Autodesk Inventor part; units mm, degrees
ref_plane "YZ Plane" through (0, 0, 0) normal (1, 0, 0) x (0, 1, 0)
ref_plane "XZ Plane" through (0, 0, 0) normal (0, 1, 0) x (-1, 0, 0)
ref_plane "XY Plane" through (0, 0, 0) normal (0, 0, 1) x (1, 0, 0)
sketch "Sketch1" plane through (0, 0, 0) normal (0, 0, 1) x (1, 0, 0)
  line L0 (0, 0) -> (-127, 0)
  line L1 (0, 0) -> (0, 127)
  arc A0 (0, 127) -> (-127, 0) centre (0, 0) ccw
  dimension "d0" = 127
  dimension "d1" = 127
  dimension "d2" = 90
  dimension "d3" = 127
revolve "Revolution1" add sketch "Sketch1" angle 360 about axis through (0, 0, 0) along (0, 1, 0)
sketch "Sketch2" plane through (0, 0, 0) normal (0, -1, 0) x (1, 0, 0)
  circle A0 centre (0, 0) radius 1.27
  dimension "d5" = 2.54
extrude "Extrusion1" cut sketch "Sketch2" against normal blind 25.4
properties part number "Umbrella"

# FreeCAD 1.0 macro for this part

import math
import FreeCAD as App
import Part
import Sketcher

V = App.Vector
Q = App.Units.Quantity

doc = App.newDocument("Part")
body = doc.addObject("PartDesign::Body", "Body")

sketch1 = body.newObject("Sketcher::SketchObject", "Sketch")
sketch1.AttachmentSupport = (doc.getObject("XY_Plane"), [""])
sketch1.MapMode = "FlatFace"
sketch1.addGeometry([
    Part.LineSegment(V(-127, 0, 0), V(0, 0, 0)),
    Part.LineSegment(V(0, 0, 0), V(0, 127, 0)),
    Part.ArcOfCircle(Part.Circle(V(0, 0, 0), V(0, 0, 1), 127), math.radians(90), math.radians(180)),
], False)
sketch1.addConstraint([
    Sketcher.Constraint("Coincident", 0, 2, 1, 1),
    Sketcher.Constraint("Coincident", 1, 2, 2, 1),
    Sketcher.Constraint("Coincident", 2, 2, 0, 1),
    Sketcher.Constraint("Horizontal", 0),
    Sketcher.Constraint("Vertical", 1),
    Sketcher.Constraint("Coincident", 2, 3, -1, 1),
    Sketcher.Constraint("Coincident", 0, 2, -1, 1),
    Sketcher.Constraint("Radius", 2, Q("5 in")),
])
revolution = body.newObject("PartDesign::Revolution", "Revolution")
revolution.Profile = sketch1
revolution.ReferenceAxis = (sketch1, ["V_Axis"])
revolution.Angle = 360

sketch2 = body.newObject("Sketcher::SketchObject", "Sketch001")
sketch2.AttachmentSupport = (doc.getObject("XZ_Plane"), [""])
sketch2.MapMode = "FlatFace"
sketch2.addGeometry(Part.Circle(V(0, 0, 0), V(0, 0, 1), 1.3), False)
sketch2.addConstraint([
    Sketcher.Constraint("Coincident", 0, 3, -1, 1),
    Sketcher.Constraint("Diameter", 0, Q("0.1 in")),
])
pocket1 = body.newObject("PartDesign::Pocket", "Pocket")
pocket1.Profile = sketch2
pocket1.Length = Q("1 in")

doc.recompute()
